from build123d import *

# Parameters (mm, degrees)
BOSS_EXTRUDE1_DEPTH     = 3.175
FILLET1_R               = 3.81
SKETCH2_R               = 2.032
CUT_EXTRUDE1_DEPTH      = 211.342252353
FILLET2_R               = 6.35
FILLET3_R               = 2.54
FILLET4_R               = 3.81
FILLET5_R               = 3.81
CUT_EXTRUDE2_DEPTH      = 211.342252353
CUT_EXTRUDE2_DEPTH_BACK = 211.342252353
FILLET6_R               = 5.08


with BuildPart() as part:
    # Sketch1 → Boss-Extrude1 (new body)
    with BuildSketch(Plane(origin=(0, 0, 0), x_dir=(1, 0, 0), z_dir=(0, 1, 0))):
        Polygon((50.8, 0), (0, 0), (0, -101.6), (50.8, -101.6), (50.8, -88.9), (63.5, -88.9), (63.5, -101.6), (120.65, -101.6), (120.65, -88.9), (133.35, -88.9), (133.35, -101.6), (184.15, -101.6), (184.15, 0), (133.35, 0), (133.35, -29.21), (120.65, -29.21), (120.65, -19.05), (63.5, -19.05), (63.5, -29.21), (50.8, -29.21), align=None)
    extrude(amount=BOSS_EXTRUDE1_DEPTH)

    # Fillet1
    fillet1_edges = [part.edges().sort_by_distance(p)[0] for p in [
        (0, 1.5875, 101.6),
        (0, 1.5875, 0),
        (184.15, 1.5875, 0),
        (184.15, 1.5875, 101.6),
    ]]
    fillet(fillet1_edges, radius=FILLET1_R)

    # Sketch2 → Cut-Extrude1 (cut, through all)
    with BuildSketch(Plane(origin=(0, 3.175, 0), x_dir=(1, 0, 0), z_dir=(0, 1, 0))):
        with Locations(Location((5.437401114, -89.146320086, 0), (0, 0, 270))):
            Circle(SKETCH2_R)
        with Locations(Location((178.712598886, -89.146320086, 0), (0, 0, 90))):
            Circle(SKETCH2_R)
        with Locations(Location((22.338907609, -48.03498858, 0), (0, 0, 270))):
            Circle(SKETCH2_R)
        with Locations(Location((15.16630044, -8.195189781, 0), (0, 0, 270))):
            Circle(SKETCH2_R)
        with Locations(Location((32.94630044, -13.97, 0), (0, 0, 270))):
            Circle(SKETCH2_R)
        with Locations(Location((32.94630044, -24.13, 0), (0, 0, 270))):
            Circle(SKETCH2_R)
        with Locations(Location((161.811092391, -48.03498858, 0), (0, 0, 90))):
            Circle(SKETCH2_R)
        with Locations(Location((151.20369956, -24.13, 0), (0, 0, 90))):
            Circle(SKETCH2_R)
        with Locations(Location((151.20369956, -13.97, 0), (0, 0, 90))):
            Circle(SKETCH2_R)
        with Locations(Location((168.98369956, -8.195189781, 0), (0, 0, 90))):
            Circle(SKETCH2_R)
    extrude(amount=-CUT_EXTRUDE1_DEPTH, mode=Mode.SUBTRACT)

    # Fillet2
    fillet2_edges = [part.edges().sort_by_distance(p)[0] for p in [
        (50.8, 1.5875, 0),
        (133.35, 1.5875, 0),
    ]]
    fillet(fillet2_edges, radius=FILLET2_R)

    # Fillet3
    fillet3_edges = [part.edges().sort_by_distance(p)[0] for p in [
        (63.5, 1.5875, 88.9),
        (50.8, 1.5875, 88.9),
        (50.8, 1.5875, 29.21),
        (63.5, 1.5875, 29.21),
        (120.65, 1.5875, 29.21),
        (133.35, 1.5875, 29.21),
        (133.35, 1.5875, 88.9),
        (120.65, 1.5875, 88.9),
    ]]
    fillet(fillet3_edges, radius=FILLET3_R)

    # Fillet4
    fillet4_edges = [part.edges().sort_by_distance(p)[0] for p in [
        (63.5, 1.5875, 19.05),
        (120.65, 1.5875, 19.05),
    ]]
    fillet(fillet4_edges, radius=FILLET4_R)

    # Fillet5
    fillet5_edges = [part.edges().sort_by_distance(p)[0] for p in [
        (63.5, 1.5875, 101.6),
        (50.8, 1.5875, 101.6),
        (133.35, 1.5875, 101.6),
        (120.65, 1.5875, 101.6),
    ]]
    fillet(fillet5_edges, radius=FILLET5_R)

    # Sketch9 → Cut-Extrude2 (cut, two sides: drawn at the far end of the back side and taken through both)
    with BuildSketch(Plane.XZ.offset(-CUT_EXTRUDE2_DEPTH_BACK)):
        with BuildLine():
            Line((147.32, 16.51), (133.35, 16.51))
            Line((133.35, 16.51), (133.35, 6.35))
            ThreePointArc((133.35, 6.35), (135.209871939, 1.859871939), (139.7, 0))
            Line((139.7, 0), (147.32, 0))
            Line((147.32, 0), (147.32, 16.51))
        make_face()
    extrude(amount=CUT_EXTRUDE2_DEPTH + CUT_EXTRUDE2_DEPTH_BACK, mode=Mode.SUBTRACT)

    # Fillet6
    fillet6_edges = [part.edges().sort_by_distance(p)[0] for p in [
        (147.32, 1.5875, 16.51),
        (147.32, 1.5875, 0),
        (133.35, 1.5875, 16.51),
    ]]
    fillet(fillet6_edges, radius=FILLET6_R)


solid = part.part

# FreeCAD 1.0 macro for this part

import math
import FreeCAD as App
import Part
import Sketcher

V = App.Vector
Q = App.Units.Quantity


def edges_at(feature, points):
    """Names of the edges that pass closest to the given points."""
    edges = feature.Shape.Edges
    near = lambda p: min(range(len(edges)), key=lambda i: edges[i].distToShape(Part.Vertex(*p))[0])
    return sorted({f"Edge{near(p) + 1}" for p in points})


def add_polygon(sketch, points):
    """Adds a closed chain of lines whose ends are joined by coincident constraints."""
    first, n = sketch.GeometryCount, len(points)
    for a, b in zip(points, points[1:] + points[:1]):
        sketch.addGeometry(Part.LineSegment(App.Vector(*a, 0), App.Vector(*b, 0)), False)
    for i in range(n):
        sketch.addConstraint(Sketcher.Constraint("Coincident", first + i, 2, first + (i + 1) % n, 1))

doc = App.newDocument("Part")
body = doc.addObject("PartDesign::Body", "Body")

# Sketch on XZ plane
sketch1 = body.newObject("Sketcher::SketchObject", "Sketch")
sketch1.AttachmentSupport = (doc.getObject("XZ_Plane"), [""])
sketch1.MapMode = "FlatFace"
add_polygon(sketch1, [(51, 0), (0, 0), (0, 102), (51, 102), (51, 89), (64, 89), (64, 102), (121, 102), (121, 89), (133, 89), (133, 102), (184, 102), (184, 0), (133, 0), (133, 29), (121, 29), (121, 19), (64, 19), (64, 29), (51, 29)])  # lines 0-19
sketch1.addConstraint([
    Sketcher.Constraint("Horizontal", 0),
    Sketcher.Constraint("Vertical", 1),
    Sketcher.Constraint("Horizontal", 2),
    Sketcher.Constraint("Vertical", 3),
    Sketcher.Constraint("Horizontal", 4),
    Sketcher.Constraint("Vertical", 5),
    Sketcher.Constraint("Horizontal", 6),
    Sketcher.Constraint("Vertical", 7),
    Sketcher.Constraint("Horizontal", 8),
    Sketcher.Constraint("Vertical", 9),
    Sketcher.Constraint("Horizontal", 10),
    Sketcher.Constraint("Vertical", 11),
    Sketcher.Constraint("Horizontal", 12),
    Sketcher.Constraint("Vertical", 13),
    Sketcher.Constraint("Horizontal", 14),
    Sketcher.Constraint("Vertical", 15),
    Sketcher.Constraint("Horizontal", 16),
    Sketcher.Constraint("Vertical", 17),
    Sketcher.Constraint("Horizontal", 18),
    Sketcher.Constraint("Vertical", 19),
    Sketcher.Constraint("Coincident", 0, 2, -1, 1),
    Sketcher.Constraint("PointOnObject", 11, 2, -1),
    Sketcher.Constraint("Horizontal", 2, 2, 5, 2),
    Sketcher.Constraint("Horizontal", 4, 2, 7, 2),
    Sketcher.Constraint("Horizontal", 6, 2, 9, 2),
    Sketcher.Constraint("Horizontal", 14, 2, 17, 2),
    Sketcher.Constraint("Vertical", 9, 2, 12, 2),
    Sketcher.Constraint("Vertical", 7, 2, 14, 2),
    Sketcher.Constraint("Vertical", 5, 2, 16, 2),
    Sketcher.Constraint("Vertical", 3, 2, 18, 2),
    Sketcher.Constraint("Equal", 4, 8),
    Sketcher.Constraint("Equal", 2, 10),
    Sketcher.Constraint("Equal", 18, 3),
    Sketcher.Constraint("DistanceX", 0, 2, 0, 1, Q("2 in")),
    Sketcher.Constraint("DistanceY", 1, 1, 1, 2, Q("4 in")),
    Sketcher.Constraint("DistanceX", 4, 1, 4, 2, Q("0.5 in")),
    Sketcher.Constraint("DistanceY", 15, 2, 15, 1, Q("0.4 in")),
    Sketcher.Constraint("DistanceX", 6, 1, 6, 2, Q("2.25 in")),
    Sketcher.Constraint("DistanceY", 13, 1, 13, 2, Q("1.15 in")),
])
pad1 = body.newObject("PartDesign::Pad", "Pad")
pad1.Profile = sketch1
pad1.Length = Q("0.125 in")
pad1.Reversed = True
doc.recompute()

fillet = body.newObject("PartDesign::Fillet", "Fillet")
fillet.Base = (pad1, edges_at(pad1, [
    (0, 1.587, 101.6),
    (0, 1.587, 0),
    (184.15, 1.587, 0),
    (184.15, 1.587, 101.6),
]))
fillet.Radius = Q("0.15 in")

# Sketch on XZ plane
sketch2 = body.newObject("Sketcher::SketchObject", "Sketch001")
sketch2.AttachmentSupport = (doc.getObject("XZ_Plane"), [""])
sketch2.MapMode = "FlatFace"
sketch2.AttachmentOffset = App.Placement(V(0, 0, -0.125 * 25.4), App.Rotation())
sketch2.addGeometry([
    Part.Circle(V(5.4, 89.1, 0), V(0, 0, 1), 2),  # 0
    Part.Circle(V(178.7, 89.1, 0), V(0, 0, 1), 2),  # 1
    Part.Circle(V(22.3, 48, 0), V(0, 0, 1), 2),  # 2
    Part.Circle(V(15.2, 8.2, 0), V(0, 0, 1), 2),  # 3
    Part.Circle(V(32.9, 14, 0), V(0, 0, 1), 2),  # 4
    Part.Circle(V(32.9, 24.1, 0), V(0, 0, 1), 2),  # 5
    Part.Circle(V(161.8, 48, 0), V(0, 0, 1), 2),  # 6
    Part.Circle(V(151.2, 24.1, 0), V(0, 0, 1), 2),  # 7
    Part.Circle(V(151.2, 14, 0), V(0, 0, 1), 2),  # 8
    Part.Circle(V(169, 8.2, 0), V(0, 0, 1), 2),  # 9
], False)
sketch2.addConstraint([
    Sketcher.Constraint("Equal", 0, 1),
    Sketcher.Constraint("Equal", 1, 2),
    Sketcher.Constraint("Equal", 2, 3),
    Sketcher.Constraint("Equal", 3, 4),
    Sketcher.Constraint("Equal", 4, 5),
    Sketcher.Constraint("Equal", 5, 6),
    Sketcher.Constraint("Equal", 6, 7),
    Sketcher.Constraint("Equal", 7, 8),
    Sketcher.Constraint("Equal", 8, 9),
    Sketcher.Constraint("Horizontal", 0, 3, 1, 3),
    Sketcher.Constraint("Horizontal", 2, 3, 6, 3),
    Sketcher.Constraint("Horizontal", 5, 3, 7, 3),
    Sketcher.Constraint("Horizontal", 4, 3, 8, 3),
    Sketcher.Constraint("Horizontal", 3, 3, 9, 3),
    Sketcher.Constraint("Vertical", 4, 3, 5, 3),
    Sketcher.Constraint("Vertical", 7, 3, 8, 3),
    Sketcher.Constraint("Diameter", 0, Q("0.16 in")),
    Sketcher.Constraint("DistanceX", 3, 3, 4, 3, Q("0.7 in")),
    Sketcher.Constraint("DistanceY", 4, 3, 5, 3, Q("0.4 in")),
    Sketcher.Constraint("DistanceX", 8, 3, 9, 3, Q("0.7 in")),
    Sketcher.Constraint("DistanceY", -1, 1, 4, 3, Q("0.55 in")),
    Sketcher.Constraint("DistanceX", -1, 1, 0, 3, Q("5.437401 mm")),
    Sketcher.Constraint("DistanceX", -1, 1, 1, 3, Q("178.712599 mm")),
    Sketcher.Constraint("DistanceX", -1, 1, 3, 3, Q("15.1663 mm")),
    Sketcher.Constraint("DistanceX", -1, 1, 7, 3, Q("151.2037 mm")),
    Sketcher.Constraint("DistanceY", 3, 3, 2, 3, Q("39.839799 mm")),
    Sketcher.Constraint("DistanceY", -1, 1, 0, 3, Q("89.14632 mm")),
    Sketcher.Constraint("DistanceY", -1, 1, 2, 3, Q("48.034989 mm")),
    Sketcher.Constraint("DistanceX", 2, 3, 1, 3, Q("156.373691 mm")),
    Sketcher.Constraint("DistanceX", 5, 3, 6, 3, Q("128.864792 mm")),
])
pocket1 = body.newObject("PartDesign::Pocket", "Pocket")
pocket1.Profile = sketch2
pocket1.Type = "ThroughAll"
pocket1.Reversed = True
doc.recompute()

fillet2 = body.newObject("PartDesign::Fillet", "Fillet001")
fillet2.Base = (pocket1, edges_at(pocket1, [(50.8, 1.587, 0), (133.35, 1.587, 0)]))
fillet2.Radius = Q("0.25 in")
doc.recompute()

fillet3 = body.newObject("PartDesign::Fillet", "Fillet002")
fillet3.Base = (fillet2, edges_at(fillet2, [
    (63.5, 1.587, 88.9),
    (50.8, 1.587, 88.9),
    (50.8, 1.587, 29.21),
    (63.5, 1.587, 29.21),
    (120.65, 1.587, 29.21),
    (133.35, 1.587, 29.21),
    (133.35, 1.587, 88.9),
    (120.65, 1.587, 88.9),
]))
fillet3.Radius = Q("0.1 in")
doc.recompute()

fillet4 = body.newObject("PartDesign::Fillet", "Fillet003")
fillet4.Base = (fillet3, edges_at(fillet3, [(63.5, 1.587, 19.05), (120.65, 1.587, 19.05)]))
fillet4.Radius = Q("0.15 in")
doc.recompute()

fillet5 = body.newObject("PartDesign::Fillet", "Fillet004")
fillet5.Base = (fillet4, edges_at(fillet4, [
    (63.5, 1.587, 101.6),
    (50.8, 1.587, 101.6),
    (133.35, 1.587, 101.6),
    (120.65, 1.587, 101.6),
]))
fillet5.Radius = Q("0.15 in")

# Sketch on XZ plane
sketch3 = body.newObject("Sketcher::SketchObject", "Sketch002")
sketch3.AttachmentSupport = (doc.getObject("XZ_Plane"), [""])
sketch3.MapMode = "FlatFace"
sketch3.addGeometry([
    Part.LineSegment(V(147, 17, 0), V(133, 17, 0)),  # 0
    Part.LineSegment(V(133, 17, 0), V(133, 6, 0)),  # 1
    Part.ArcOfCircle(Part.Circle(V(140, 6, 0), V(0, 0, 1), 6), math.radians(180), math.radians(270)),  # 2
    Part.LineSegment(V(140, 0, 0), V(147, 0, 0)),  # 3
    Part.LineSegment(V(147, 0, 0), V(147, 17, 0)),  # 4
], False)
sketch3.addConstraint([
    Sketcher.Constraint("Coincident", 0, 2, 1, 1),
    Sketcher.Constraint("Tangent", 1, 2, 2, 1),
    Sketcher.Constraint("Tangent", 2, 2, 3, 1),
    Sketcher.Constraint("Coincident", 3, 2, 4, 1),
    Sketcher.Constraint("Coincident", 4, 2, 0, 1),
    Sketcher.Constraint("Horizontal", 0),
    Sketcher.Constraint("Vertical", 1),
    Sketcher.Constraint("Horizontal", 3),
    Sketcher.Constraint("Vertical", 4),
    Sketcher.Constraint("PointOnObject", 2, 2, -1),
    Sketcher.Constraint("Radius", 2, Q("0.25 in")),
    Sketcher.Constraint("DistanceX", 3, 1, 3, 2, Q("0.3 in")),
    Sketcher.Constraint("DistanceY", 1, 2, 1, 1, Q("0.4 in")),
    Sketcher.Constraint("DistanceX", -1, 1, 2, 3, Q("5.5 in")),
])
pocket2 = body.newObject("PartDesign::Pocket", "Pocket001")
pocket2.Profile = sketch3
pocket2.Type = "ThroughAll"
pocket2.Midplane = True
doc.recompute()

fillet6 = body.newObject("PartDesign::Fillet", "Fillet005")
fillet6.Base = (pocket2, edges_at(pocket2, [(147.32, 1.587, 16.51), (147.32, 1.587, 0), (133.35, 1.587, 16.51)]))
fillet6.Radius = Q("0.2 in")

doc.recompute()
